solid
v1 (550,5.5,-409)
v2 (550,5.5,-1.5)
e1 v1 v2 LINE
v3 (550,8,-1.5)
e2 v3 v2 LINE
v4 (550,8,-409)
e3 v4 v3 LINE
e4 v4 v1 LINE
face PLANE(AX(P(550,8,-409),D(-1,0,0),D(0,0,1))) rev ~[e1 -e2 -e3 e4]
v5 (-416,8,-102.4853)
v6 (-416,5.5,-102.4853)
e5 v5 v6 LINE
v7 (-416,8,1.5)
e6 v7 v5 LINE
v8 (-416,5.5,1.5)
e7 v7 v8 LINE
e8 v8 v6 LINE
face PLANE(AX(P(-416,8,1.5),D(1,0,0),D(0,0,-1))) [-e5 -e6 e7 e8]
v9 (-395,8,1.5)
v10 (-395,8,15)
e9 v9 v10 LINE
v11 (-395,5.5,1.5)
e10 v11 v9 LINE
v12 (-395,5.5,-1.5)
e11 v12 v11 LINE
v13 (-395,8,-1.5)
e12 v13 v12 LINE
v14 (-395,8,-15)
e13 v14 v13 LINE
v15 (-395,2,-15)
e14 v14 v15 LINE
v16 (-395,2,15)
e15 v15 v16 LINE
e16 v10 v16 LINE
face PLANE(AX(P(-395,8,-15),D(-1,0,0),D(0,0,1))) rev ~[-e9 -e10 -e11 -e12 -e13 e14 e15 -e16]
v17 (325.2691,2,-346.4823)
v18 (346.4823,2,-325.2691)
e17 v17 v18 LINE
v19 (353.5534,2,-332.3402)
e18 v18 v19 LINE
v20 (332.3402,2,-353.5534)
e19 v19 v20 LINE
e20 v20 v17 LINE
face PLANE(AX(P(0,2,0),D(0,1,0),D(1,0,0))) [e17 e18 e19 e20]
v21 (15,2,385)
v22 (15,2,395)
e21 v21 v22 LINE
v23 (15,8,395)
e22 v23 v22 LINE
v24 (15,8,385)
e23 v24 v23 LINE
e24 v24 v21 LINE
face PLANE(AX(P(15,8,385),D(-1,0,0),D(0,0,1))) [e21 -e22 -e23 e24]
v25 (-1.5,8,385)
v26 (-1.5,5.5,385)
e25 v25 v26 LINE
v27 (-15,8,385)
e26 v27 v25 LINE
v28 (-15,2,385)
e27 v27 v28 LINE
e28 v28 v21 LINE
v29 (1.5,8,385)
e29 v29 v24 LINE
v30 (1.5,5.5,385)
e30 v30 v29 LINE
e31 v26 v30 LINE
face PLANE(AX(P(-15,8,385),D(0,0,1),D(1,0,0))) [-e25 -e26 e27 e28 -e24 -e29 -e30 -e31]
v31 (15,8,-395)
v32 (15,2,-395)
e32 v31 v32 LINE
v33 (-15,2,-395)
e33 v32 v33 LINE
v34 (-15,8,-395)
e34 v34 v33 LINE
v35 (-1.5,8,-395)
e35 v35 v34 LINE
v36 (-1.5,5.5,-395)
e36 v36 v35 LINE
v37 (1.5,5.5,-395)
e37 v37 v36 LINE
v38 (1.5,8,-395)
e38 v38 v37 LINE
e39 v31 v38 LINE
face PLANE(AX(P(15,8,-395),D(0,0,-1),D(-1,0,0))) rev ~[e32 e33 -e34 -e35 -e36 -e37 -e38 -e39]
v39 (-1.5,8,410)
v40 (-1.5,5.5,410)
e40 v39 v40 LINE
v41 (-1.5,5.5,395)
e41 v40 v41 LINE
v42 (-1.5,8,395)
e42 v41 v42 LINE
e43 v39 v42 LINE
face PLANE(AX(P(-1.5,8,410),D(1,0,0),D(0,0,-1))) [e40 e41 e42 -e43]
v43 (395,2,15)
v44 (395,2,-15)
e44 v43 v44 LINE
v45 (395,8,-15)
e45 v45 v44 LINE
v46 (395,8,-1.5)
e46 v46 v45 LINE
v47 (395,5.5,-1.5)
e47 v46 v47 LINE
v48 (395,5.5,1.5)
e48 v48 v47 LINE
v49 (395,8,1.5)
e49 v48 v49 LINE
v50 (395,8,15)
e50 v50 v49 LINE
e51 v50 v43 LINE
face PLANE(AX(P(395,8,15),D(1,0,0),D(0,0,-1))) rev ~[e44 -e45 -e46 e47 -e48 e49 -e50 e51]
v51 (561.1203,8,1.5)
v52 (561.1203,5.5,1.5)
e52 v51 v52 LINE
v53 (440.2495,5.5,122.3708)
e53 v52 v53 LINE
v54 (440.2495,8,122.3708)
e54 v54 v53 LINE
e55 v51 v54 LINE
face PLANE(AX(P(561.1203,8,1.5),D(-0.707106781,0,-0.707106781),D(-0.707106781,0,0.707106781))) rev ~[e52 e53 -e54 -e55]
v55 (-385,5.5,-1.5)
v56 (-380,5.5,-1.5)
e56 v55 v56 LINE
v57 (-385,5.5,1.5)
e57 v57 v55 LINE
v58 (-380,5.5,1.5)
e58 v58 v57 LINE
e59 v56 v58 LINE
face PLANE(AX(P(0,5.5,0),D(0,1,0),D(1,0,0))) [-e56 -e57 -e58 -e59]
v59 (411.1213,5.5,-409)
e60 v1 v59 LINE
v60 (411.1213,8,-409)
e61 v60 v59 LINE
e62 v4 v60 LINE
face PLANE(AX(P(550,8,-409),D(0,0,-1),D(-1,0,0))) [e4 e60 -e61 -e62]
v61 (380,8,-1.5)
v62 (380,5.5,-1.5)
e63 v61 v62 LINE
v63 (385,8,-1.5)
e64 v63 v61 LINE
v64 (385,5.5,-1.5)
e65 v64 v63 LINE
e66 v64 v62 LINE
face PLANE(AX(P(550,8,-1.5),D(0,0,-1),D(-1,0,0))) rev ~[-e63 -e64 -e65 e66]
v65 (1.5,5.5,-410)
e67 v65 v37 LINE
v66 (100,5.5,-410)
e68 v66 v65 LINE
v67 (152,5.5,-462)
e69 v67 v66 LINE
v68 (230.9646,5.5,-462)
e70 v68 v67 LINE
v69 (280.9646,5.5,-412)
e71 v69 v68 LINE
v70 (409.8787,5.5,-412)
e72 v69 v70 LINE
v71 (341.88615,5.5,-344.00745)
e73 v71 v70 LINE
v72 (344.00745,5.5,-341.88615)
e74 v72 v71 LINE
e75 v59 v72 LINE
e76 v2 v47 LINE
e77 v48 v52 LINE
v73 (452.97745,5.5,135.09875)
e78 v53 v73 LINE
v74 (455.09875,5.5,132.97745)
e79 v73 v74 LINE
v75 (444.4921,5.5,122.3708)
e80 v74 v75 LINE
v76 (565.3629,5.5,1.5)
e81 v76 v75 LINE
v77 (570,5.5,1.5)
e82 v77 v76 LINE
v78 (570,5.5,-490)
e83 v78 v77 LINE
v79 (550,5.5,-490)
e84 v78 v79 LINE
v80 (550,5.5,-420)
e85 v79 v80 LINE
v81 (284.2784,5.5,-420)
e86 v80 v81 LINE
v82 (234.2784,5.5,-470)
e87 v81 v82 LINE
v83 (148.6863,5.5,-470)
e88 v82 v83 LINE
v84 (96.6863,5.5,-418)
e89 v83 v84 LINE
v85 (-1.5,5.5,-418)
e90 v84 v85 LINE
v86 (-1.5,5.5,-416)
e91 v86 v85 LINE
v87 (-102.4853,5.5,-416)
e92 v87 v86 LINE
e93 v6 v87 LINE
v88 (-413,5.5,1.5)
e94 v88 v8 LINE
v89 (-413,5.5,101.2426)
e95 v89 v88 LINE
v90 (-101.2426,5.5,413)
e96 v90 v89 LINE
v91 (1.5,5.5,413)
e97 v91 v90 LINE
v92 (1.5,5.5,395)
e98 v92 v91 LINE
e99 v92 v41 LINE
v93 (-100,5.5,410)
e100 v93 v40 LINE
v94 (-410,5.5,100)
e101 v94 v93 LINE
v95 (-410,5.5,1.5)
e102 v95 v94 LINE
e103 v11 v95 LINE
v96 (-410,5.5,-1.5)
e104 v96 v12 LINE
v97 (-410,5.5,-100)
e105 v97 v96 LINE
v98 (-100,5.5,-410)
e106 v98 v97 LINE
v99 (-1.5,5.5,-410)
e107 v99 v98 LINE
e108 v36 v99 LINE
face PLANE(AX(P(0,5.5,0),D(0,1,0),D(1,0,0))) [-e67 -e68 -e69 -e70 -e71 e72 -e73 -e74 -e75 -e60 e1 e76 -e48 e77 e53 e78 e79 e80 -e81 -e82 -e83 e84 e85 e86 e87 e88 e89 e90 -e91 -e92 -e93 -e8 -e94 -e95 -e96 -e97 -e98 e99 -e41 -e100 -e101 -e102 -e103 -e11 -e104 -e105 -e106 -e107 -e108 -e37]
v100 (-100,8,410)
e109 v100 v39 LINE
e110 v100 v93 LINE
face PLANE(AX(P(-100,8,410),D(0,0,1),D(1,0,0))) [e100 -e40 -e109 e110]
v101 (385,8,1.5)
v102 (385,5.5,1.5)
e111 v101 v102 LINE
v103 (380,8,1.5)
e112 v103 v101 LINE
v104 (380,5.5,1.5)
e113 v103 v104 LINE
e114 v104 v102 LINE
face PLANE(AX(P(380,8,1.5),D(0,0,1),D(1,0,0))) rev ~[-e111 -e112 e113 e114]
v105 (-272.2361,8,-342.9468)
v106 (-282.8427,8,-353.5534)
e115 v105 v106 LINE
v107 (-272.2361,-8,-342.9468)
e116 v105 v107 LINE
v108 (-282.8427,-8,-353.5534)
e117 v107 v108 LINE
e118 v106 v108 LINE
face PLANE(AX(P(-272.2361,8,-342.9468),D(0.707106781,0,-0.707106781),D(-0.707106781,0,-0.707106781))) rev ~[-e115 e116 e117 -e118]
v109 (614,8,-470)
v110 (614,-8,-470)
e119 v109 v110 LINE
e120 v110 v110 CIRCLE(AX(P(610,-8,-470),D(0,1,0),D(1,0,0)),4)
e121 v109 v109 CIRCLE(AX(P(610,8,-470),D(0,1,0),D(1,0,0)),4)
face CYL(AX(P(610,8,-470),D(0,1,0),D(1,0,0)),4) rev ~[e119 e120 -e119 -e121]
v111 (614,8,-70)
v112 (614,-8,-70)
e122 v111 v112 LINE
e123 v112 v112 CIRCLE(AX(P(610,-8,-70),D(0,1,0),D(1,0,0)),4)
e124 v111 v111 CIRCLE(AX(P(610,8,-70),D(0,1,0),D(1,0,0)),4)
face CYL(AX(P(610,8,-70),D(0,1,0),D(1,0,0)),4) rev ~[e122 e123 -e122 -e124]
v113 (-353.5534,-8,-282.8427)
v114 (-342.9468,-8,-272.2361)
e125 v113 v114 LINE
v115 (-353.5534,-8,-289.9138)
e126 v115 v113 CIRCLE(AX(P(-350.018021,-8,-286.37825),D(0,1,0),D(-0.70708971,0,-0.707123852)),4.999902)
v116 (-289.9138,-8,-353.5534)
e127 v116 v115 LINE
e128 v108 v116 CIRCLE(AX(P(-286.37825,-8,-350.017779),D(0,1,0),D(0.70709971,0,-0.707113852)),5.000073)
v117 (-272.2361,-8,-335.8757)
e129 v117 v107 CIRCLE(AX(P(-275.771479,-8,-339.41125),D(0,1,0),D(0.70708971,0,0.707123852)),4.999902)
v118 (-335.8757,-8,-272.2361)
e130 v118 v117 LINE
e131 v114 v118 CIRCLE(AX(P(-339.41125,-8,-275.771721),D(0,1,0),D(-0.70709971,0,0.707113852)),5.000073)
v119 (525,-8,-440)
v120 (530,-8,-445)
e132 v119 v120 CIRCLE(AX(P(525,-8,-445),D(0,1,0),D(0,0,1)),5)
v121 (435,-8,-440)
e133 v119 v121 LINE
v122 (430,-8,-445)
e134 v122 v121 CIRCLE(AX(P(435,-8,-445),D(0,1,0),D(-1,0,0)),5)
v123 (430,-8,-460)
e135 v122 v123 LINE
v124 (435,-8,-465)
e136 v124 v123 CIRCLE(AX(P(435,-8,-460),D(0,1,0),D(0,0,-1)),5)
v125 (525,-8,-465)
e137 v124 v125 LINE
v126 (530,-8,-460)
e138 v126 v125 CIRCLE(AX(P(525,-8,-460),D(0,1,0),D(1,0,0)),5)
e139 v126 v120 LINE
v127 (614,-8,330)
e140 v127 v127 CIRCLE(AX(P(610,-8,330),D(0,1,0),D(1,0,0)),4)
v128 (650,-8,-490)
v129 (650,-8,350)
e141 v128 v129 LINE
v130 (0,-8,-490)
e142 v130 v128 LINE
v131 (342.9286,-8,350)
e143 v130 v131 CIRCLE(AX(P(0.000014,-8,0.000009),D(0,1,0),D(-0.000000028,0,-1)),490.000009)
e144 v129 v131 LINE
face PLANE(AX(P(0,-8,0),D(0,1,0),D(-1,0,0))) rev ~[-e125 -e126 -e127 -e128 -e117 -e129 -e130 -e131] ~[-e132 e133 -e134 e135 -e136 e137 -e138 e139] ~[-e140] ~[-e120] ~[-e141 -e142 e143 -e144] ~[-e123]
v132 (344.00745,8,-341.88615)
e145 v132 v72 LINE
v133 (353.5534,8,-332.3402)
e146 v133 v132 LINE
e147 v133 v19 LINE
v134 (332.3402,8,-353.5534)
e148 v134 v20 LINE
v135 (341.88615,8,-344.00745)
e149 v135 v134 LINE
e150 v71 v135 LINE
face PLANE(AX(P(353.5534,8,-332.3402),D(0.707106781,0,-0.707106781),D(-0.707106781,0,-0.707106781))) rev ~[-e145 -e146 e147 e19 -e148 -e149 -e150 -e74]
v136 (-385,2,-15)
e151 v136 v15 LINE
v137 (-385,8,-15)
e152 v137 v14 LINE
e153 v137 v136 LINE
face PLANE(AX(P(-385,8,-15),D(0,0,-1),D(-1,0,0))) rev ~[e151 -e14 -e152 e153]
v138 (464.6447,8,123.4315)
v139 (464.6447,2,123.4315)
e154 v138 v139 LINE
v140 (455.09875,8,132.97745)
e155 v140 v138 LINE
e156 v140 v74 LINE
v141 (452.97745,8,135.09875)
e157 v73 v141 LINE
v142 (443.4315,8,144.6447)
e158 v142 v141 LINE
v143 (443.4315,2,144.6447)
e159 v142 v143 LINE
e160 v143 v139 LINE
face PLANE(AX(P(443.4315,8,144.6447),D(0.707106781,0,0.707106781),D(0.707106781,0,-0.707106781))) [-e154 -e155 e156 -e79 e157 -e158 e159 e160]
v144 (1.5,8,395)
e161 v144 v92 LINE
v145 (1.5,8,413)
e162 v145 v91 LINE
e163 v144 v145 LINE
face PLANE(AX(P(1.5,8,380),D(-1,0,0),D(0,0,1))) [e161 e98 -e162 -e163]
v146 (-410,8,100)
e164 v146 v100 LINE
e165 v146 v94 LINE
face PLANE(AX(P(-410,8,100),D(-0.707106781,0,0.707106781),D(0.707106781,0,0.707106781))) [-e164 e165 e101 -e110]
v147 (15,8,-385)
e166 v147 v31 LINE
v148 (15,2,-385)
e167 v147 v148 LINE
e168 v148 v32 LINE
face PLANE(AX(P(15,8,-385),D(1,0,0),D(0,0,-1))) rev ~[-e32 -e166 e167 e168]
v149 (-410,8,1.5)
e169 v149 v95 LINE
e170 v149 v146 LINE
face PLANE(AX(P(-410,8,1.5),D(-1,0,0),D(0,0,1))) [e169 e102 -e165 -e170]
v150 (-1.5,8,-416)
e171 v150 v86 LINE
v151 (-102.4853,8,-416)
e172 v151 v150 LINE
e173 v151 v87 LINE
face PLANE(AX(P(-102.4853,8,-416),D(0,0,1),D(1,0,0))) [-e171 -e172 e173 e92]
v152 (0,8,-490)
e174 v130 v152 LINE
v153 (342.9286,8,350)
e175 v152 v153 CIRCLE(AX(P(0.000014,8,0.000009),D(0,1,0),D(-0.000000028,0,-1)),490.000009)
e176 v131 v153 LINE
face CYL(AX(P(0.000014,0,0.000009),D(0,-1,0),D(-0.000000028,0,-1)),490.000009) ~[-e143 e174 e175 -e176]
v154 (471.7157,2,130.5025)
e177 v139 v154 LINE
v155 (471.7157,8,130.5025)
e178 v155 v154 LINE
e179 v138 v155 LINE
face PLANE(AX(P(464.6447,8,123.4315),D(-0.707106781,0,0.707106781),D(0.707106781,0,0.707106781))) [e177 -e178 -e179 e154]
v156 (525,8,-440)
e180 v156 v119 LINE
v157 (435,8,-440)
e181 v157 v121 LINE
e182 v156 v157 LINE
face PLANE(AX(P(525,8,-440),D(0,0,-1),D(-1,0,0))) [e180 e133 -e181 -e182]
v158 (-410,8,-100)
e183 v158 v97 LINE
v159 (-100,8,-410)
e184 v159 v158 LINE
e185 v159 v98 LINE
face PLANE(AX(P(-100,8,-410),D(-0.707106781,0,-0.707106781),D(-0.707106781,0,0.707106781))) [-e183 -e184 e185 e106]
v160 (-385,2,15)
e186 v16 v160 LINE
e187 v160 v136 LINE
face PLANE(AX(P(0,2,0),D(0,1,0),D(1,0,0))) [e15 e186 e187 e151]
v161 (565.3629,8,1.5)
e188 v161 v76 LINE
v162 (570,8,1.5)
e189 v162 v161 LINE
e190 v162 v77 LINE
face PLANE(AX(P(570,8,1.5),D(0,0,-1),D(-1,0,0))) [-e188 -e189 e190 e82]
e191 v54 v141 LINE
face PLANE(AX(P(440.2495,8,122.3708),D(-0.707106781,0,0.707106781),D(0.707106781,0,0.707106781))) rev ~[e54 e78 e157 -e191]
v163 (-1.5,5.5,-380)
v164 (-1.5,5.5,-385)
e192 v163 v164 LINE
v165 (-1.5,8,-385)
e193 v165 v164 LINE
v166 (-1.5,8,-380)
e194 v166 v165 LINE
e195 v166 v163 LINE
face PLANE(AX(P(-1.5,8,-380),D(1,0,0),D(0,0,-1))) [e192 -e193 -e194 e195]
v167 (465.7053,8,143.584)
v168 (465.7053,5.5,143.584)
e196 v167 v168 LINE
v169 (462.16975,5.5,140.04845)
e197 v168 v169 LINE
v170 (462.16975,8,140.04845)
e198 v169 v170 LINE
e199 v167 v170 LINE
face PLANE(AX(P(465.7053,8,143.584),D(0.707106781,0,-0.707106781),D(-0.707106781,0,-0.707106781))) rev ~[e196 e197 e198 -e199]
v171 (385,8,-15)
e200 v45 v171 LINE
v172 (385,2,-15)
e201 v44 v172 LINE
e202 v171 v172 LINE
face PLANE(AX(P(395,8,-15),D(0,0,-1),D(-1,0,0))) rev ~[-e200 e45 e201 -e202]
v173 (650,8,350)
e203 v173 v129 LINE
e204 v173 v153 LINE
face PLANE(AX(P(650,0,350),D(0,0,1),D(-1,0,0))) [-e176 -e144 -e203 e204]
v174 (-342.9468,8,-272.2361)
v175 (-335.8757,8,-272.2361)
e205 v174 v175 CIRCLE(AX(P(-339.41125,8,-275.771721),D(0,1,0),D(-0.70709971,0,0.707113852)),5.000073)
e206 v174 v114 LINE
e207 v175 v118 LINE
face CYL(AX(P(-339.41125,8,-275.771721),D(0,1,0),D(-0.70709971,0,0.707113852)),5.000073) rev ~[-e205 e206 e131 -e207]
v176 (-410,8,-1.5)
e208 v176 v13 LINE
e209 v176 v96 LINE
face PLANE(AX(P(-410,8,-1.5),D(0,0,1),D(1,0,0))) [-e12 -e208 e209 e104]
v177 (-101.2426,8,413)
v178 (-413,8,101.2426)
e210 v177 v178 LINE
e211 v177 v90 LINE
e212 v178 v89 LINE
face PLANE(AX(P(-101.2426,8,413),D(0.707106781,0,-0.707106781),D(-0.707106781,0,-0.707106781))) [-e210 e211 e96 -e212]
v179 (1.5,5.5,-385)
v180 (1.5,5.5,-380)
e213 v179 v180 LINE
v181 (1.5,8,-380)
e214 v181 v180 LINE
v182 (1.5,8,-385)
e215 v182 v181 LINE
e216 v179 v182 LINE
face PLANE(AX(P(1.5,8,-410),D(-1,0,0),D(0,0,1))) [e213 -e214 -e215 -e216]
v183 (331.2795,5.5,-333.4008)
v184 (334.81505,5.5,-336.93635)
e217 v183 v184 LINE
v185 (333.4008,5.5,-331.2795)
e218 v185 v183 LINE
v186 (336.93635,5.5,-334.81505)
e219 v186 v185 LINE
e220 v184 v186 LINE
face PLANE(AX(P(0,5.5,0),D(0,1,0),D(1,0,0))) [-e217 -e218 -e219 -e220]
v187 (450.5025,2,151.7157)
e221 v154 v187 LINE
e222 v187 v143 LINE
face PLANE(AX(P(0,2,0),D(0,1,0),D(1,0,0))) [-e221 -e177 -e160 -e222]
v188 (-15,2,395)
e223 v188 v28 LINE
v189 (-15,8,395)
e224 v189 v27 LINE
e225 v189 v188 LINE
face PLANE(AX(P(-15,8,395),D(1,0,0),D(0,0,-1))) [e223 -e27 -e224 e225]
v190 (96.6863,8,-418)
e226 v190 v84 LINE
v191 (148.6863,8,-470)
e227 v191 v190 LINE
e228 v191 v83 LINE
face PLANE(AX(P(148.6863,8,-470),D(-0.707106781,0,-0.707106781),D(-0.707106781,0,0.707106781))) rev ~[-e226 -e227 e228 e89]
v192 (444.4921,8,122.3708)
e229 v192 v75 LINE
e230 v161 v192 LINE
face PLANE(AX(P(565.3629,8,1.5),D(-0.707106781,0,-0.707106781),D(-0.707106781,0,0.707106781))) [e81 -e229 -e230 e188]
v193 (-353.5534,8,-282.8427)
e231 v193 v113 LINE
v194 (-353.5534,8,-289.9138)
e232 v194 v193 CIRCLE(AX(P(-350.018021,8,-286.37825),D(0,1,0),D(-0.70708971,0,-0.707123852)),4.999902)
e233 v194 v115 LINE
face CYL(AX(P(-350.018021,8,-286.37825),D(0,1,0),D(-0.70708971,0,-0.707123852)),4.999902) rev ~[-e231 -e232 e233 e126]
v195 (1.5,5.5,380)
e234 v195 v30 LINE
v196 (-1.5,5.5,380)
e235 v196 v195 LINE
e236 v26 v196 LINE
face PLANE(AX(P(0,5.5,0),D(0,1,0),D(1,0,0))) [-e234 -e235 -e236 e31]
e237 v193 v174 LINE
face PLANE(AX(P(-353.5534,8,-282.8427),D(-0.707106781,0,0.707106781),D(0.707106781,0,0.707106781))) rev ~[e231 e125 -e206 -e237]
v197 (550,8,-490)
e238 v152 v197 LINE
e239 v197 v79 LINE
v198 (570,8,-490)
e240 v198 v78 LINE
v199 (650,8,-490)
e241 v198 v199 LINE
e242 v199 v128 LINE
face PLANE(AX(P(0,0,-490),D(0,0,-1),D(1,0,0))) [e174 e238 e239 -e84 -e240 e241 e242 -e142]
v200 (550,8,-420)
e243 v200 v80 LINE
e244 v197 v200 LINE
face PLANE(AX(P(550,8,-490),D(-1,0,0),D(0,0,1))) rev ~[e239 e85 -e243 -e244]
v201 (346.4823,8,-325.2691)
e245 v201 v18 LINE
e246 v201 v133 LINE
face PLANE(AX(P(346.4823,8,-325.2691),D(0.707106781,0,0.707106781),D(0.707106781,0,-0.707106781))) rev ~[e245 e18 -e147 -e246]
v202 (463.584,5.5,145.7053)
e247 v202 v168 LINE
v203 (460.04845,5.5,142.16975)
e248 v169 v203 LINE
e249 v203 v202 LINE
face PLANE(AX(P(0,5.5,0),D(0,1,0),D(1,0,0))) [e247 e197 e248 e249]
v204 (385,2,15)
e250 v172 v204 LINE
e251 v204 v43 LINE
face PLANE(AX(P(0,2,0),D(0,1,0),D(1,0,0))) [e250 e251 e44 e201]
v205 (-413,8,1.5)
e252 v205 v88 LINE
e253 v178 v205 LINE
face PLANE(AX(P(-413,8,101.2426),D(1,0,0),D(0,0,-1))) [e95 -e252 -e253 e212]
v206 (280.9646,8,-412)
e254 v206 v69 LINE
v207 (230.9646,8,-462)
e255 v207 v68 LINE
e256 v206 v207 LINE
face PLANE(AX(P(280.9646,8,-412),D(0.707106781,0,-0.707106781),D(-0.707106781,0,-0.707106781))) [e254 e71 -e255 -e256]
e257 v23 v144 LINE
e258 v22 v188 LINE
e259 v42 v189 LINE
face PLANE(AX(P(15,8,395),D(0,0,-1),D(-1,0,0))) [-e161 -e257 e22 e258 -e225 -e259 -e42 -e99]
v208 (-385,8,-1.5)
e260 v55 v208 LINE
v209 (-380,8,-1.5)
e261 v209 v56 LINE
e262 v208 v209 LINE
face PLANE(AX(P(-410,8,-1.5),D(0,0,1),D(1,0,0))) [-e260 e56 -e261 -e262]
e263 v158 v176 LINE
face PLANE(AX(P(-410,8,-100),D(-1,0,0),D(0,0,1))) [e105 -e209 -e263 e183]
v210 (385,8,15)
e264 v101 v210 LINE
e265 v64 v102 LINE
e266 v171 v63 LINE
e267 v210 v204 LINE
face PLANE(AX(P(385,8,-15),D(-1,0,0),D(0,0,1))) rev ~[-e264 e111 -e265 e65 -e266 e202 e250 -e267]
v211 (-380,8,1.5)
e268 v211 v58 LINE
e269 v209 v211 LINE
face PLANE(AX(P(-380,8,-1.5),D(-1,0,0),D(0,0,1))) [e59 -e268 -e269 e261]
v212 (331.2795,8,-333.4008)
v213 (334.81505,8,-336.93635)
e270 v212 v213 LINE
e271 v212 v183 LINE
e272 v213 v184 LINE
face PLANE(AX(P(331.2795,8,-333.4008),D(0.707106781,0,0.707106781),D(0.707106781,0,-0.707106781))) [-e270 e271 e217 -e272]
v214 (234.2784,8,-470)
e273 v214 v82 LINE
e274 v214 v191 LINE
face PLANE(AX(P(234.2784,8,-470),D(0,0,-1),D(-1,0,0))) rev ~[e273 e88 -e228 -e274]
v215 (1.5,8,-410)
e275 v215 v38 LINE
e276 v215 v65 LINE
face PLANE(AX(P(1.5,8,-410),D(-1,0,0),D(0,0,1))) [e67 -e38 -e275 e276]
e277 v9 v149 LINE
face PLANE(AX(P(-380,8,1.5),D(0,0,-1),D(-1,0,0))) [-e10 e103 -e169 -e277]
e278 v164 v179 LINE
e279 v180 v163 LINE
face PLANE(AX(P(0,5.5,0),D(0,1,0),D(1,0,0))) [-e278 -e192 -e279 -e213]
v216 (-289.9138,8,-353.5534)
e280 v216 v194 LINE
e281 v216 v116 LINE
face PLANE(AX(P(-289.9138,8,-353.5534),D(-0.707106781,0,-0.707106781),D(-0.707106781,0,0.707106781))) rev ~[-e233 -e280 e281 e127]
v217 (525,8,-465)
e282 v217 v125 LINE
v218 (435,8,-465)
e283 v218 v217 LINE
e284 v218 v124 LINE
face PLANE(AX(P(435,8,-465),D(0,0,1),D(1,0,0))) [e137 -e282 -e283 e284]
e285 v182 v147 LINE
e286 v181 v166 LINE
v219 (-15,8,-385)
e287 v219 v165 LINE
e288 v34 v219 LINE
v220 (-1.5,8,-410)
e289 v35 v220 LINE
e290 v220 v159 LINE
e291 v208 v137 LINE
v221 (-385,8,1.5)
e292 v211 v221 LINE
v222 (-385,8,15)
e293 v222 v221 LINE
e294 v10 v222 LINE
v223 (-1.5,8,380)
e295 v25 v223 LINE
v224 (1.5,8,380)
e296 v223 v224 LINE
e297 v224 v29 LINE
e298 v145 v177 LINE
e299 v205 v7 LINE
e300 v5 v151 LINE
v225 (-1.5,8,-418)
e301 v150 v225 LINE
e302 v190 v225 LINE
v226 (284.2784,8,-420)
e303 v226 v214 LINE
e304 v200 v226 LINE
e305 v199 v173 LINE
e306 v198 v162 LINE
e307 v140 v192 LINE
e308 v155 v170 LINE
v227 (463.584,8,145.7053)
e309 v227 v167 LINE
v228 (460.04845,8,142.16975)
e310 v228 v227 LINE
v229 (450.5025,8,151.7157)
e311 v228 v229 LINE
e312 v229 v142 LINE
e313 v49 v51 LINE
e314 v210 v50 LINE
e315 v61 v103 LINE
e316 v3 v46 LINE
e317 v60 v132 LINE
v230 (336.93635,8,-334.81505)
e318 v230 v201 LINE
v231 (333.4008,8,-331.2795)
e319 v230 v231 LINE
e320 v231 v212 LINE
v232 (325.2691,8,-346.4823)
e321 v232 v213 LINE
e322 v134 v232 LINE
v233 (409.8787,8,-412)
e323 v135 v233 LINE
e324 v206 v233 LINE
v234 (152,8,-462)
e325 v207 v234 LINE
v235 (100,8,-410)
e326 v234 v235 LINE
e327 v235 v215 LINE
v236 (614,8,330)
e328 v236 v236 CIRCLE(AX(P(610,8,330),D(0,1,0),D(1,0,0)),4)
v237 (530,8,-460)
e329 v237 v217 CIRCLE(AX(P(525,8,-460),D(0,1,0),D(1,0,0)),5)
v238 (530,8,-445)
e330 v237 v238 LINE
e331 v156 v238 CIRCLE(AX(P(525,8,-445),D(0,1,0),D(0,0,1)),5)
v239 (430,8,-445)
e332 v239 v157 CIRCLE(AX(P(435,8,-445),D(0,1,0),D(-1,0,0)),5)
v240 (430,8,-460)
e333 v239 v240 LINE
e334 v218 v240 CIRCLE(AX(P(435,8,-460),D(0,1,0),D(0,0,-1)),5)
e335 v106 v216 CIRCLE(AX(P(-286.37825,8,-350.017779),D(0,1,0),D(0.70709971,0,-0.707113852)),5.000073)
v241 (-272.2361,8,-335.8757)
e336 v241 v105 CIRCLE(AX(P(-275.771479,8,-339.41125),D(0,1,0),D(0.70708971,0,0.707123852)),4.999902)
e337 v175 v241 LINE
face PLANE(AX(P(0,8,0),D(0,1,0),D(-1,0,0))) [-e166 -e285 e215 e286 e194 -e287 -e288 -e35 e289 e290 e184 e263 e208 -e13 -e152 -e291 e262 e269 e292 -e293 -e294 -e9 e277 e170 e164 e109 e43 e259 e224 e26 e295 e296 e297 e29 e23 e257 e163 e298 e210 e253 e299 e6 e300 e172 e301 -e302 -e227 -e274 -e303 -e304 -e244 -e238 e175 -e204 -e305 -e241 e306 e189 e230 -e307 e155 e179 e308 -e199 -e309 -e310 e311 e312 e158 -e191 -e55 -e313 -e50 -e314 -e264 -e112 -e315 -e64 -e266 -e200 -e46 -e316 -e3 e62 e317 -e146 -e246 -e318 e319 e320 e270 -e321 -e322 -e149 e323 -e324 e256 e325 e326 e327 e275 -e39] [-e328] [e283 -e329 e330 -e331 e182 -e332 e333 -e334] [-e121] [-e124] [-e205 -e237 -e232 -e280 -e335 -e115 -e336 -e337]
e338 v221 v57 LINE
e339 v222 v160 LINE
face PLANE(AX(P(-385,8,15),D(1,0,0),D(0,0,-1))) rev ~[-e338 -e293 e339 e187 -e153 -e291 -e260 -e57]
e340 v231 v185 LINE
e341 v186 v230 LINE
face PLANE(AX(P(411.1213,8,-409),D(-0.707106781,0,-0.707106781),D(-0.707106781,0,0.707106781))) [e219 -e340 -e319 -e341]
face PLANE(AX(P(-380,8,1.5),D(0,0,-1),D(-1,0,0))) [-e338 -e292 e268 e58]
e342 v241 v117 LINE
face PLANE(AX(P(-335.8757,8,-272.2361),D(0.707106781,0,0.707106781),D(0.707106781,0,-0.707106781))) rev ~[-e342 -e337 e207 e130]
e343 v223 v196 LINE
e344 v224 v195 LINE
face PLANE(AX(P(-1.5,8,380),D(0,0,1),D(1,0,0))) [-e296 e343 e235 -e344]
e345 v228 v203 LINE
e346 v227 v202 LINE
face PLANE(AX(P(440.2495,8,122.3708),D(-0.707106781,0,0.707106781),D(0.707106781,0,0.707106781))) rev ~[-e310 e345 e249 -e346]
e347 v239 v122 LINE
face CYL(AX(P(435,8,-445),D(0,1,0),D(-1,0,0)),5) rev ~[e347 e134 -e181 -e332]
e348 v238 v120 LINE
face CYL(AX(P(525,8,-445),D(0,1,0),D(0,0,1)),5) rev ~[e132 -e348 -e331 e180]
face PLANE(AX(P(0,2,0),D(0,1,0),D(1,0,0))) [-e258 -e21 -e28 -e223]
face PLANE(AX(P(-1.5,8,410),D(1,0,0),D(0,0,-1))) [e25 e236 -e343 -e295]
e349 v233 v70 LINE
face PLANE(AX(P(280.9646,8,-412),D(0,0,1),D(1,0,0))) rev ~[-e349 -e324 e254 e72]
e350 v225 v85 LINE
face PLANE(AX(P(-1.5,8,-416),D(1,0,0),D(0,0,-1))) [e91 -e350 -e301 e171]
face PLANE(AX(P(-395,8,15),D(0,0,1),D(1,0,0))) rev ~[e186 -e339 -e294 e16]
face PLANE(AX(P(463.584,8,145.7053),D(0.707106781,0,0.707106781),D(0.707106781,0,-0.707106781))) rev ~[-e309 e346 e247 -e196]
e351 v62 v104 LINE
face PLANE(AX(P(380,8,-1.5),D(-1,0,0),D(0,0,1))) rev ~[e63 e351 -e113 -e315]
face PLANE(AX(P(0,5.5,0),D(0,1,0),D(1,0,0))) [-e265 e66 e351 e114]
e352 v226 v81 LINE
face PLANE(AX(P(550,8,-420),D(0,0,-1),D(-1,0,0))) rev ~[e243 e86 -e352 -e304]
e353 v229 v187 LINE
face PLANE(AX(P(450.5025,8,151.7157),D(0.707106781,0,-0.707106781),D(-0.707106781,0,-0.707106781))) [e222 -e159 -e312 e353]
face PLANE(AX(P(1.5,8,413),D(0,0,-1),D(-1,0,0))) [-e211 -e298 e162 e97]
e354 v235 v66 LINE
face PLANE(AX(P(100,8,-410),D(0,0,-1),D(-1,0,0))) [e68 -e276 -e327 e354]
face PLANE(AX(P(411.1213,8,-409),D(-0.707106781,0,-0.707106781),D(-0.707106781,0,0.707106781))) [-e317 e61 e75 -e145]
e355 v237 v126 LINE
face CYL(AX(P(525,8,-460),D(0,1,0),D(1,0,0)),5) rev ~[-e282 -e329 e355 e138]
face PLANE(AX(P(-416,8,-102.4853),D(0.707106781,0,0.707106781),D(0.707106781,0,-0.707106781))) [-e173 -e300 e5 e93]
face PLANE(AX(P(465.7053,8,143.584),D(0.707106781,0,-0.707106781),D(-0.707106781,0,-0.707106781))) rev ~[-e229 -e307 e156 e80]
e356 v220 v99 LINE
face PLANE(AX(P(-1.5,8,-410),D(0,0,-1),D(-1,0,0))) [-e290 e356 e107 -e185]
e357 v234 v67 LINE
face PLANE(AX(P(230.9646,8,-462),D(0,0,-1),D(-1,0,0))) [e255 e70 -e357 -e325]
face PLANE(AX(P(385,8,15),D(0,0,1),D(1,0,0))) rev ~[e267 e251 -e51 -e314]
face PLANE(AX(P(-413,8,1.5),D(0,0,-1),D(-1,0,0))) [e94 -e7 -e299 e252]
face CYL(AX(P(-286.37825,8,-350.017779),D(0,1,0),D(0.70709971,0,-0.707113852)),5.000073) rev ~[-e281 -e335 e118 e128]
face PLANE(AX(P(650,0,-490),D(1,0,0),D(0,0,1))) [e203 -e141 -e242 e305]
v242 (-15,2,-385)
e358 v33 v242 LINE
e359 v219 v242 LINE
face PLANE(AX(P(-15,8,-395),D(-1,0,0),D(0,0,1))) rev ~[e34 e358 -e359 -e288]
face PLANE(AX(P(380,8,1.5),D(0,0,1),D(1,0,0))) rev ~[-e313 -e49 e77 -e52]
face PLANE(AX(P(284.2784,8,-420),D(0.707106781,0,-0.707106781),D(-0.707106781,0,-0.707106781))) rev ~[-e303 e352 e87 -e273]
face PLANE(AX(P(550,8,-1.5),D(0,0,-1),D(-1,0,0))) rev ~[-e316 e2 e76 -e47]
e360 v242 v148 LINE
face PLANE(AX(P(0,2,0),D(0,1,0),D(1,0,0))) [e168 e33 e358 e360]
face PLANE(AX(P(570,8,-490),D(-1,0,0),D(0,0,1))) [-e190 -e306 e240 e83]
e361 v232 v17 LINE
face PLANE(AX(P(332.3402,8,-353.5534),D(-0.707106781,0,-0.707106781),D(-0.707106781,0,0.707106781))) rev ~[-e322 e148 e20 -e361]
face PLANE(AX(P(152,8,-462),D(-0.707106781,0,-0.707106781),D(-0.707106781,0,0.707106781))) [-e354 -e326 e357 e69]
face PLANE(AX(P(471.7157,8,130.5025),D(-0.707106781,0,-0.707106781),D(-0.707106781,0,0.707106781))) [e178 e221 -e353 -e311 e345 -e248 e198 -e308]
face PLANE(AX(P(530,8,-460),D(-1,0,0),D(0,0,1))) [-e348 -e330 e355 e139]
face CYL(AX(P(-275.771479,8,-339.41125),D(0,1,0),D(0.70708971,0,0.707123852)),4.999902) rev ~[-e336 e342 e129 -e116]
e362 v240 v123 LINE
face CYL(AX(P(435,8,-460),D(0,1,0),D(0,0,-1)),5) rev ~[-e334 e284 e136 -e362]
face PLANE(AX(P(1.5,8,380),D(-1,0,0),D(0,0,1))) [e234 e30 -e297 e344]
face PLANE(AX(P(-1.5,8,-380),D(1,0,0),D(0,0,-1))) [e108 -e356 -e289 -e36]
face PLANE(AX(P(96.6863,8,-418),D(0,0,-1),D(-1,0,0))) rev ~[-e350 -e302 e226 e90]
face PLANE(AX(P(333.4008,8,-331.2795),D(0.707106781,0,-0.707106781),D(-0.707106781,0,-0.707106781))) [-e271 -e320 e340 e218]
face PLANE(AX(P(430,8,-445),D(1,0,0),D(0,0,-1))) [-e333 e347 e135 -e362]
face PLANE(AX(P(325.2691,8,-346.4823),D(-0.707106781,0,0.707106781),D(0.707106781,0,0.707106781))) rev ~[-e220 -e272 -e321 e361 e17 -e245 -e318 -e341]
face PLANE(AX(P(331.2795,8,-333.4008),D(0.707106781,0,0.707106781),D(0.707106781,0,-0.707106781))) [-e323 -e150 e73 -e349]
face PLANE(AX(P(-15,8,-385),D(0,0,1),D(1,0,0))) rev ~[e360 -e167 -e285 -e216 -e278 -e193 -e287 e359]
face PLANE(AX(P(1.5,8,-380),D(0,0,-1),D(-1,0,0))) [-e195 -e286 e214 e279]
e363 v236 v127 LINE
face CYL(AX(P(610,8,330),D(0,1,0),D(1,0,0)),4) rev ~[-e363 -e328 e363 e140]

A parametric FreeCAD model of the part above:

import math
import FreeCAD as App
import Part
import Sketcher

V = App.Vector
Q = App.Units.Quantity

doc = App.newDocument("Part")
body = doc.addObject("PartDesign::Body", "Body")

# Sketch on XZ plane
sketch1 = body.newObject("Sketcher::SketchObject", "Sketch")
sketch1.AttachmentSupport = (doc.getObject("XZ_Plane"), [""])
sketch1.MapMode = "FlatFace"
sketch1.addGeometry([
    Part.LineSegment(V(650, -490, 0), V(0, -490, 0)),
    Part.ArcOfCircle(Part.Circle(V(0, 0, 0), V(0, 0, 1), 490), math.radians(46), math.radians(270)),
    Part.LineSegment(V(343, 350, 0), V(650, 350, 0)),
    Part.LineSegment(V(650, 350, 0), V(650, -490, 0)),
], False)
sketch1.addConstraint([
    Sketcher.Constraint("Tangent", 0, 2, 1, 2),
    Sketcher.Constraint("Coincident", 1, 1, 2, 1),
    Sketcher.Constraint("Coincident", 2, 2, 3, 1),
    Sketcher.Constraint("Coincident", 3, 2, 0, 1),
    Sketcher.Constraint("Horizontal", 0),
    Sketcher.Constraint("Horizontal", 2),
    Sketcher.Constraint("Vertical", 3),
    Sketcher.Constraint("Coincident", 1, 3, -1, 1),
    Sketcher.Constraint("Radius", 1, Q("490 mm")),
    Sketcher.Constraint("DistanceX", 0, 2, 0, 1, Q("650 mm")),
    Sketcher.Constraint("DistanceY", -1, 1, 2, 2, Q("350 mm")),
])
pad1 = body.newObject("PartDesign::Pad", "Pad")
pad1.Profile = sketch1
pad1.Length = 16
pad1.Midplane = True

# Sketch on XZ plane
sketch2 = body.newObject("Sketcher::SketchObject", "Sketch001")
sketch2.AttachmentSupport = (doc.getObject("XZ_Plane"), [""])
sketch2.MapMode = "FlatFace"
sketch2.AttachmentOffset = App.Placement(V(0, 0, -8), App.Rotation())
sketch2.addGeometry([
    Part.LineSegment(V(525, -465, 0), V(435, -465, 0)),  # 0
    Part.ArcOfCircle(Part.Circle(V(435, -460, 0), V(0, 0, 1), 5), math.radians(180), math.radians(270)),  # 1
    Part.LineSegment(V(430, -460, 0), V(430, -445, 0)),  # 2
    Part.ArcOfCircle(Part.Circle(V(435, -445, 0), V(0, 0, 1), 5), math.radians(90), math.radians(180)),  # 3
    Part.LineSegment(V(435, -440, 0), V(525, -440, 0)),  # 4
    Part.ArcOfCircle(Part.Circle(V(525, -445, 0), V(0, 0, 1), 5), math.radians(0), math.radians(90)),  # 5
    Part.LineSegment(V(530, -445, 0), V(530, -460, 0)),  # 6
    Part.ArcOfCircle(Part.Circle(V(525, -460, 0), V(0, 0, 1), 5), math.radians(-90), math.radians(0)),  # 7
    Part.ArcOfCircle(Part.Circle(V(-286.4, -350, 0), V(0, 0, 1), 5), math.radians(-135), math.radians(-45)),  # 8
    Part.LineSegment(V(-289.9, -353.6, 0), V(-353.6, -289.9, 0)),  # 9
    Part.ArcOfCircle(Part.Circle(V(-350, -286.4, 0), V(0, 0, 1), 5), math.radians(135), math.radians(225)),  # 10
    Part.LineSegment(V(-353.6, -282.8, 0), V(-342.9, -272.2, 0)),  # 11
    Part.ArcOfCircle(Part.Circle(V(-339.4, -275.8, 0), V(0, 0, 1), 5), math.radians(45), math.radians(135)),  # 12
    Part.LineSegment(V(-335.9, -272.2, 0), V(-272.2, -335.9, 0)),  # 13
    Part.ArcOfCircle(Part.Circle(V(-275.8, -339.4, 0), V(0, 0, 1), 5), math.radians(-45), math.radians(45)),  # 14
    Part.LineSegment(V(-272.2, -342.9, 0), V(-282.8, -353.6, 0)),  # 15
], False)
sketch2.addConstraint([
    Sketcher.Constraint("Tangent", 0, 2, 1, 2),
    Sketcher.Constraint("Tangent", 1, 1, 2, 1),
    Sketcher.Constraint("Tangent", 2, 2, 3, 2),
    Sketcher.Constraint("Tangent", 3, 1, 4, 1),
    Sketcher.Constraint("Tangent", 4, 2, 5, 2),
    Sketcher.Constraint("Tangent", 5, 1, 6, 1),
    Sketcher.Constraint("Tangent", 6, 2, 7, 2),
    Sketcher.Constraint("Tangent", 7, 1, 0, 1),
    Sketcher.Constraint("Tangent", 8, 1, 9, 1),
    Sketcher.Constraint("Tangent", 9, 2, 10, 2),
    Sketcher.Constraint("Tangent", 10, 1, 11, 1),
    Sketcher.Constraint("Tangent", 11, 2, 12, 2),
    Sketcher.Constraint("Tangent", 12, 1, 13, 1),
    Sketcher.Constraint("Tangent", 13, 2, 14, 2),
    Sketcher.Constraint("Tangent", 14, 1, 15, 1),
    Sketcher.Constraint("Tangent", 15, 2, 8, 2),
    Sketcher.Constraint("Horizontal", 0),
    Sketcher.Constraint("Vertical", 2),
    Sketcher.Constraint("Horizontal", 4),
    Sketcher.Constraint("Vertical", 6),
    Sketcher.Constraint("Equal", 1, 3),
    Sketcher.Constraint("Equal", 3, 5),
    Sketcher.Constraint("Equal", 5, 7),
    Sketcher.Constraint("Equal", 7, 8),
    Sketcher.Constraint("Equal", 8, 10),
    Sketcher.Constraint("Equal", 10, 12),
    Sketcher.Constraint("Equal", 12, 14),
    Sketcher.Constraint("Perpendicular", 9, 11),
    Sketcher.Constraint("Perpendicular", 11, 13),
    Sketcher.Constraint("Perpendicular", 13, 15),
    Sketcher.Constraint("Horizontal", 11, 2, 12, 1),
    Sketcher.Constraint("Radius", 1, Q("5 mm")),
    Sketcher.Constraint("DistanceX", 0, 2, 0, 1, Q("90 mm")),
    Sketcher.Constraint("Distance", 9, Q("90 mm")),
    Sketcher.Constraint("DistanceX", -1, 1, 1, 1, Q("430 mm")),
    Sketcher.Constraint("DistanceY", 0, 2, 3, 1, Q("25 mm")),
    Sketcher.Constraint("Distance", 11, Q("15 mm")),
    Sketcher.Constraint("DistanceY", 1, 3, -1, 1, Q("460 mm")),
    Sketcher.Constraint("DistanceY", 8, 3, -1, 1, Q("350.018 mm")),
    Sketcher.Constraint("DistanceX", 10, 3, -1, 1, Q("350.018 mm")),
])
pocket1 = body.newObject("PartDesign::Pocket", "Pocket")
pocket1.Profile = sketch2
pocket1.Type = "ThroughAll"
pocket1.Reversed = True

# Sketch on XZ plane
sketch3 = body.newObject("Sketcher::SketchObject", "Sketch002")
sketch3.AttachmentSupport = (doc.getObject("XZ_Plane"), [""])
sketch3.MapMode = "FlatFace"
sketch3.AttachmentOffset = App.Placement(V(0, 0, -8), App.Rotation())
sketch3.addGeometry([
    Part.Circle(V(610, -470, 0), V(0, 0, 1), 4),
    Part.Circle(V(610, 330, 0), V(0, 0, 1), 4),
    Part.Circle(V(610, -70, 0), V(0, 0, 1), 4),
], False)
sketch3.addConstraint([
    Sketcher.Constraint("Equal", 0, 1),
    Sketcher.Constraint("Equal", 1, 2),
    Sketcher.Constraint("Vertical", 0, 3, 1, 3),
    Sketcher.Constraint("Vertical", 1, 3, 2, 3),
    Sketcher.Constraint("Diameter", 0, Q("8 mm")),
    Sketcher.Constraint("DistanceX", -1, 1, 0, 3, Q("610 mm")),
    Sketcher.Constraint("DistanceY", 0, 3, -1, 1, Q("470 mm")),
    Sketcher.Constraint("DistanceY", -1, 1, 1, 3, Q("330 mm")),
    Sketcher.Constraint("DistanceY", 2, 3, -1, 1, Q("70 mm")),
])
pocket2 = body.newObject("PartDesign::Pocket", "Pocket001")
pocket2.Profile = sketch3
pocket2.Type = "ThroughAll"
pocket2.Reversed = True

# Sketch on XZ plane
sketch4 = body.newObject("Sketcher::SketchObject", "Sketch003")
sketch4.AttachmentSupport = (doc.getObject("XZ_Plane"), [""])
sketch4.MapMode = "FlatFace"
sketch4.AttachmentOffset = App.Placement(V(0, 0, -8), App.Rotation())
sketch4.addGeometry([
    Part.LineSegment(V(570, 1.5, 0), V(570, -490, 0)),  # 0
    Part.LineSegment(V(570, -490, 0), V(550, -490, 0)),  # 1
    Part.LineSegment(V(550, -490, 0), V(550, -420, 0)),  # 2
    Part.LineSegment(V(550, -420, 0), V(284.3, -420, 0)),  # 3
    Part.LineSegment(V(284.3, -420, 0), V(234.3, -470, 0)),  # 4
    Part.LineSegment(V(234.3, -470, 0), V(148.7, -470, 0)),  # 5
    Part.LineSegment(V(148.7, -470, 0), V(96.7, -418, 0)),  # 6
    Part.LineSegment(V(96.7, -418, 0), V(-1.5, -418, 0)),  # 7
    Part.LineSegment(V(-1.5, -418, 0), V(-1.5, -416, 0)),  # 8
    Part.LineSegment(V(-1.5, -416, 0), V(-102.5, -416, 0)),  # 9
    Part.LineSegment(V(-102.5, -416, 0), V(-416, -102.5, 0)),  # 10
    Part.LineSegment(V(-416, -102.5, 0), V(-416, 1.5, 0)),  # 11
    Part.LineSegment(V(-416, 1.5, 0), V(-413, 1.5, 0)),  # 12
    Part.LineSegment(V(-413, 1.5, 0), V(-413, 101.2, 0)),  # 13
    Part.LineSegment(V(-413, 101.2, 0), V(-101.2, 413, 0)),  # 14
    Part.LineSegment(V(-101.2, 413, 0), V(1.5, 413, 0)),  # 15
    Part.LineSegment(V(1.5, 413, 0), V(1.5, 380, 0)),  # 16
    Part.LineSegment(V(1.5, 380, 0), V(-1.5, 380, 0)),  # 17
    Part.LineSegment(V(-1.5, 380, 0), V(-1.5, 410, 0)),  # 18
    Part.LineSegment(V(-1.5, 410, 0), V(-100, 410, 0)),  # 19
    Part.LineSegment(V(-100, 410, 0), V(-410, 100, 0)),  # 20
    Part.LineSegment(V(-410, 100, 0), V(-410, 1.5, 0)),  # 21
    Part.LineSegment(V(-410, 1.5, 0), V(-380, 1.5, 0)),  # 22
    Part.LineSegment(V(-380, 1.5, 0), V(-380, -1.5, 0)),  # 23
    Part.LineSegment(V(-380, -1.5, 0), V(-410, -1.5, 0)),  # 24
    Part.LineSegment(V(-410, -1.5, 0), V(-410, -100, 0)),  # 25
    Part.LineSegment(V(-410, -100, 0), V(-100, -410, 0)),  # 26
    Part.LineSegment(V(-100, -410, 0), V(-1.5, -410, 0)),  # 27
    Part.LineSegment(V(-1.5, -410, 0), V(-1.5, -380, 0)),  # 28
    Part.LineSegment(V(-1.5, -380, 0), V(1.5, -380, 0)),  # 29
    Part.LineSegment(V(1.5, -380, 0), V(1.5, -410, 0)),  # 30
    Part.LineSegment(V(1.5, -410, 0), V(100, -410, 0)),  # 31
    Part.LineSegment(V(100, -410, 0), V(152, -462, 0)),  # 32
    Part.LineSegment(V(152, -462, 0), V(231, -462, 0)),  # 33
    Part.LineSegment(V(231, -462, 0), V(281, -412, 0)),  # 34
    Part.LineSegment(V(281, -412, 0), V(409.9, -412, 0)),  # 35
    Part.LineSegment(V(409.9, -412, 0), V(331.3, -333.4, 0)),  # 36
    Part.LineSegment(V(331.3, -333.4, 0), V(333.4, -331.3, 0)),  # 37
    Part.LineSegment(V(333.4, -331.3, 0), V(411.1, -409, 0)),  # 38
    Part.LineSegment(V(411.1, -409, 0), V(550, -409, 0)),  # 39
    Part.LineSegment(V(550, -409, 0), V(550, -1.5, 0)),  # 40
    Part.LineSegment(V(550, -1.5, 0), V(380, -1.5, 0)),  # 41
    Part.LineSegment(V(380, -1.5, 0), V(380, 1.5, 0)),  # 42
    Part.LineSegment(V(380, 1.5, 0), V(561.1, 1.5, 0)),  # 43
    Part.LineSegment(V(561.1, 1.5, 0), V(440.2, 122.4, 0)),  # 44
    Part.LineSegment(V(440.2, 122.4, 0), V(463.6, 145.7, 0)),  # 45
    Part.LineSegment(V(463.6, 145.7, 0), V(465.7, 143.6, 0)),  # 46
    Part.LineSegment(V(465.7, 143.6, 0), V(444.5, 122.4, 0)),  # 47
    Part.LineSegment(V(444.5, 122.4, 0), V(565.4, 1.5, 0)),  # 48
    Part.LineSegment(V(565.4, 1.5, 0), V(570, 1.5, 0)),  # 49
], False)
sketch4.addConstraint([
    Sketcher.Constraint("Coincident", 0, 2, 1, 1),
    Sketcher.Constraint("Coincident", 1, 2, 2, 1),
    Sketcher.Constraint("Coincident", 2, 2, 3, 1),
    Sketcher.Constraint("Coincident", 3, 2, 4, 1),
    Sketcher.Constraint("Coincident", 4, 2, 5, 1),
    Sketcher.Constraint("Coincident", 5, 2, 6, 1),
    Sketcher.Constraint("Coincident", 6, 2, 7, 1),
    Sketcher.Constraint("Coincident", 7, 2, 8, 1),
    Sketcher.Constraint("Coincident", 8, 2, 9, 1),
    Sketcher.Constraint("Coincident", 9, 2, 10, 1),
    Sketcher.Constraint("Coincident", 10, 2, 11, 1),
    Sketcher.Constraint("Coincident", 11, 2, 12, 1),
    Sketcher.Constraint("Coincident", 12, 2, 13, 1),
    Sketcher.Constraint("Coincident", 13, 2, 14, 1),
    Sketcher.Constraint("Coincident", 14, 2, 15, 1),
    Sketcher.Constraint("Coincident", 15, 2, 16, 1),
    Sketcher.Constraint("Coincident", 16, 2, 17, 1),
    Sketcher.Constraint("Coincident", 17, 2, 18, 1),
    Sketcher.Constraint("Coincident", 18, 2, 19, 1),
    Sketcher.Constraint("Coincident", 19, 2, 20, 1),
    Sketcher.Constraint("Coincident", 20, 2, 21, 1),
    Sketcher.Constraint("Coincident", 21, 2, 22, 1),
    Sketcher.Constraint("Coincident", 22, 2, 23, 1),
    Sketcher.Constraint("Coincident", 23, 2, 24, 1),
    Sketcher.Constraint("Coincident", 24, 2, 25, 1),
    Sketcher.Constraint("Coincident", 25, 2, 26, 1),
    Sketcher.Constraint("Coincident", 26, 2, 27, 1),
    Sketcher.Constraint("Coincident", 27, 2, 28, 1),
    Sketcher.Constraint("Coincident", 28, 2, 29, 1),
    Sketcher.Constraint("Coincident", 29, 2, 30, 1),
    Sketcher.Constraint("Coincident", 30, 2, 31, 1),
    Sketcher.Constraint("Coincident", 31, 2, 32, 1),
    Sketcher.Constraint("Coincident", 32, 2, 33, 1),
    Sketcher.Constraint("Coincident", 33, 2, 34, 1),
    Sketcher.Constraint("Coincident", 34, 2, 35, 1),
    Sketcher.Constraint("Coincident", 35, 2, 36, 1),
    Sketcher.Constraint("Coincident", 36, 2, 37, 1),
    Sketcher.Constraint("Coincident", 37, 2, 38, 1),
    Sketcher.Constraint("Coincident", 38, 2, 39, 1),
    Sketcher.Constraint("Coincident", 39, 2, 40, 1),
    Sketcher.Constraint("Coincident", 40, 2, 41, 1),
    Sketcher.Constraint("Coincident", 41, 2, 42, 1),
    Sketcher.Constraint("Coincident", 42, 2, 43, 1),
    Sketcher.Constraint("Coincident", 43, 2, 44, 1),
    Sketcher.Constraint("Coincident", 44, 2, 45, 1),
    Sketcher.Constraint("Coincident", 45, 2, 46, 1),
    Sketcher.Constraint("Coincident", 46, 2, 47, 1),
    Sketcher.Constraint("Coincident", 47, 2, 48, 1),
    Sketcher.Constraint("Coincident", 48, 2, 49, 1),
    Sketcher.Constraint("Coincident", 49, 2, 0, 1),
    Sketcher.Constraint("Vertical", 0),
    Sketcher.Constraint("Horizontal", 1),
    Sketcher.Constraint("Vertical", 2),
    Sketcher.Constraint("Horizontal", 3),
    Sketcher.Constraint("Horizontal", 5),
    Sketcher.Constraint("Horizontal", 7),
    Sketcher.Constraint("Vertical", 8),
    Sketcher.Constraint("Horizontal", 9),
    Sketcher.Constraint("Vertical", 11),
    Sketcher.Constraint("Horizontal", 12),
    Sketcher.Constraint("Vertical", 13),
    Sketcher.Constraint("Horizontal", 15),
    Sketcher.Constraint("Vertical", 16),
    Sketcher.Constraint("Horizontal", 17),
    Sketcher.Constraint("Vertical", 18),
    Sketcher.Constraint("Horizontal", 19),
    Sketcher.Constraint("Vertical", 21),
    Sketcher.Constraint("Horizontal", 22),
    Sketcher.Constraint("Vertical", 23),
    Sketcher.Constraint("Horizontal", 24),
    Sketcher.Constraint("Vertical", 25),
    Sketcher.Constraint("Horizontal", 27),
    Sketcher.Constraint("Vertical", 28),
    Sketcher.Constraint("Horizontal", 29),
    Sketcher.Constraint("Vertical", 30),
    Sketcher.Constraint("Horizontal", 31),
    Sketcher.Constraint("Horizontal", 33),
    Sketcher.Constraint("Horizontal", 35),
    Sketcher.Constraint("Horizontal", 39),
    Sketcher.Constraint("Vertical", 40),
    Sketcher.Constraint("Horizontal", 41),
    Sketcher.Constraint("Vertical", 42),
    Sketcher.Constraint("Horizontal", 43),
    Sketcher.Constraint("Horizontal", 49),
    Sketcher.Constraint("Symmetric", 16, 2, 28, 2, -1, 1),
    Sketcher.Constraint("Symmetric", 18, 2, 30, 2, -1, 1),
    Sketcher.Constraint("Symmetric", 22, 2, 41, 2, -1, 1),
    Sketcher.Constraint("Symmetric", 27, 2, 30, 2, -2),
    Sketcher.Constraint("Symmetric", 21, 2, 24, 2, -1),
    Sketcher.Constraint("Perpendicular", 4, 6),
    Sketcher.Constraint("Parallel", 6, 10),
    Sketcher.Constraint("Perpendicular", 10, 14),
    Sketcher.Constraint("Parallel", 14, 20),
    Sketcher.Constraint("Perpendicular", 20, 26),
    Sketcher.Constraint("Parallel", 26, 32),
    Sketcher.Constraint("Perpendicular", 32, 34),
    Sketcher.Constraint("Perpendicular", 34, 36),
    Sketcher.Constraint("Perpendicular", 36, 37),
    Sketcher.Constraint("Perpendicular", 37, 38),
    Sketcher.Constraint("Parallel", 38, 44),
    Sketcher.Constraint("Perpendicular", 44, 45),
    Sketcher.Constraint("Perpendicular", 45, 46),
    Sketcher.Constraint("Perpendicular", 46, 47),
    Sketcher.Constraint("Perpendicular", 47, 48),
    Sketcher.Constraint("Horizontal", 12, 2, 21, 2),
    Sketcher.Constraint("Horizontal", 22, 2, 42, 2),
    Sketcher.Constraint("Horizontal", 44, 2, 47, 2),
    Sketcher.Constraint("Horizontal", 43, 2, 48, 2),
    Sketcher.Constraint("Vertical", 8, 2, 17, 2),
    Sketcher.Constraint("Vertical", 19, 2, 26, 2),
    Sketcher.Constraint("Vertical", 2, 2, 39, 2),
    Sketcher.Constraint("Equal", 12, 17),
    Sketcher.Constraint("Equal", 27, 31),
    Sketcher.Constraint("Equal", 24, 18),
    Sketcher.Constraint("Equal", 31, 21),
    Sketcher.Constraint("Equal", 29, 23),
    Sketcher.Constraint("Equal", 21, 25),
    Sketcher.Constraint("Equal", 6, 32),
    Sketcher.Constraint("Equal", 4, 34),
    Sketcher.Constraint("Equal", 37, 46),
    Sketcher.Constraint("DistanceX", 1, 2, 1, 1, Q("20 mm")),
    Sketcher.Constraint("DistanceX", 12, 1, 12, 2, Q("3 mm")),
    Sketcher.Constraint("Distance", 37, Q("3 mm")),
    Sketcher.Constraint("DistanceY", 1, 2, 4, 2, Q("20 mm")),
    Sketcher.Constraint("DistanceY", 18, 2, 15, 2, Q("3 mm")),
    Sketcher.Constraint("DistanceX", 13, 2, 20, 2, Q("3 mm")),
    Sketcher.Constraint("DistanceY", 9, 2, 26, 2, Q("6 mm")),
    Sketcher.Constraint("DistanceY", 7, 2, 26, 2, Q("8 mm")),
    Sketcher.Constraint("DistanceY", 35, 2, 38, 2, Q("3 mm")),
    Sketcher.Constraint("DistanceX", 22, 1, 22, 2, Q("30 mm")),
    Sketcher.Constraint("DistanceX", 41, 2, 41, 1, Q("170 mm")),
    Sketcher.Constraint("DistanceY", 2, 1, 2, 2, Q("70 mm")),
    Sketcher.Constraint("Distance", 45, Q("33 mm")),
    Sketcher.Constraint("DistanceX", 19, 2, 19, 1, Q("98.5 mm")),
    Sketcher.Constraint("DistanceY", 0, 2, 0, 1, Q("491.5 mm")),
    Sketcher.Constraint("DistanceX", -1, 1, 0, 2, Q("570 mm")),
    Sketcher.Constraint("DistanceX", 5, 2, 5, 1, Q("85.592 mm")),
    Sketcher.Constraint("DistanceX", 35, 1, 35, 2, Q("128.914 mm")),
    Sketcher.Constraint("DistanceX", 49, 1, 49, 2, Q("4.637 mm")),
    Sketcher.Constraint("Distance", 36, Q("111.156 mm")),
    Sketcher.Constraint("DistanceX", 3, 2, 3, 1, Q("265.7216 mm")),
    Sketcher.Constraint("DistanceX", 9, 2, 9, 1, Q("100.9853 mm")),
    Sketcher.Constraint("DistanceX", 15, 1, 15, 2, Q("102.7426 mm")),
    Sketcher.Constraint("DistanceX", 33, 1, 33, 2, Q("78.9646 mm")),
    Sketcher.Constraint("DistanceX", -1, 1, 45, 2, Q("463.584 mm")),
])
pocket3 = body.newObject("PartDesign::Pocket", "Pocket002")
pocket3.Profile = sketch4
pocket3.Length = 2.5
pocket3.Reversed = True

# Sketch on XZ plane
sketch5 = body.newObject("Sketcher::SketchObject", "Sketch004")
sketch5.AttachmentSupport = (doc.getObject("XZ_Plane"), [""])
sketch5.MapMode = "FlatFace"
sketch5.AttachmentOffset = App.Placement(V(0, 0, -8), App.Rotation())
sketch5.addGeometry([
    Part.LineSegment(V(472, 131, 0), V(465, 123, 0)),  # 0
    Part.LineSegment(V(465, 123, 0), V(443, 145, 0)),  # 1
    Part.LineSegment(V(443, 145, 0), V(451, 152, 0)),  # 2
    Part.LineSegment(V(451, 152, 0), V(472, 131, 0)),  # 3
    Part.LineSegment(V(332, -354, 0), V(325, -346, 0)),  # 4
    Part.LineSegment(V(325, -346, 0), V(346, -325, 0)),  # 5
    Part.LineSegment(V(346, -325, 0), V(354, -332, 0)),  # 6
    Part.LineSegment(V(354, -332, 0), V(332, -354, 0)),  # 7
    Part.LineSegment(V(-15, -395, 0), V(-15, -385, 0)),  # 8
    Part.LineSegment(V(-15, -385, 0), V(15, -385, 0)),  # 9
    Part.LineSegment(V(15, -385, 0), V(15, -395, 0)),  # 10
    Part.LineSegment(V(15, -395, 0), V(-15, -395, 0)),  # 11
    Part.LineSegment(V(-385, -15, 0), V(-395, -15, 0)),  # 12
    Part.LineSegment(V(-395, -15, 0), V(-395, 15, 0)),  # 13
    Part.LineSegment(V(-395, 15, 0), V(-385, 15, 0)),  # 14
    Part.LineSegment(V(-385, 15, 0), V(-385, -15, 0)),  # 15
    Part.LineSegment(V(395, -15, 0), V(385, -15, 0)),  # 16
    Part.LineSegment(V(385, -15, 0), V(385, 15, 0)),  # 17
    Part.LineSegment(V(385, 15, 0), V(395, 15, 0)),  # 18
    Part.LineSegment(V(395, 15, 0), V(395, -15, 0)),  # 19
    Part.LineSegment(V(15, 385, 0), V(-15, 385, 0)),  # 20
    Part.LineSegment(V(-15, 385, 0), V(-15, 395, 0)),  # 21
    Part.LineSegment(V(-15, 395, 0), V(15, 395, 0)),  # 22
    Part.LineSegment(V(15, 395, 0), V(15, 385, 0)),  # 23
], False)
sketch5.addConstraint([
    Sketcher.Constraint("Coincident", 0, 2, 1, 1),
    Sketcher.Constraint("Coincident", 1, 2, 2, 1),
    Sketcher.Constraint("Coincident", 2, 2, 3, 1),
    Sketcher.Constraint("Coincident", 3, 2, 0, 1),
    Sketcher.Constraint("Coincident", 4, 2, 5, 1),
    Sketcher.Constraint("Coincident", 5, 2, 6, 1),
    Sketcher.Constraint("Coincident", 6, 2, 7, 1),
    Sketcher.Constraint("Coincident", 7, 2, 4, 1),
    Sketcher.Constraint("Coincident", 8, 2, 9, 1),
    Sketcher.Constraint("Coincident", 9, 2, 10, 1),
    Sketcher.Constraint("Coincident", 10, 2, 11, 1),
    Sketcher.Constraint("Coincident", 11, 2, 8, 1),
    Sketcher.Constraint("Coincident", 12, 2, 13, 1),
    Sketcher.Constraint("Coincident", 13, 2, 14, 1),
    Sketcher.Constraint("Coincident", 14, 2, 15, 1),
    Sketcher.Constraint("Coincident", 15, 2, 12, 1),
    Sketcher.Constraint("Coincident", 16, 2, 17, 1),
    Sketcher.Constraint("Coincident", 17, 2, 18, 1),
    Sketcher.Constraint("Coincident", 18, 2, 19, 1),
    Sketcher.Constraint("Coincident", 19, 2, 16, 1),
    Sketcher.Constraint("Coincident", 20, 2, 21, 1),
    Sketcher.Constraint("Coincident", 21, 2, 22, 1),
    Sketcher.Constraint("Coincident", 22, 2, 23, 1),
    Sketcher.Constraint("Coincident", 23, 2, 20, 1),
    Sketcher.Constraint("Vertical", 8),
    Sketcher.Constraint("Horizontal", 9),
    Sketcher.Constraint("Vertical", 10),
    Sketcher.Constraint("Horizontal", 11),
    Sketcher.Constraint("Horizontal", 12),
    Sketcher.Constraint("Vertical", 13),
    Sketcher.Constraint("Horizontal", 14),
    Sketcher.Constraint("Vertical", 15),
    Sketcher.Constraint("Horizontal", 16),
    Sketcher.Constraint("Vertical", 17),
    Sketcher.Constraint("Horizontal", 18),
    Sketcher.Constraint("Vertical", 19),
    Sketcher.Constraint("Horizontal", 20),
    Sketcher.Constraint("Vertical", 21),
    Sketcher.Constraint("Horizontal", 22),
    Sketcher.Constraint("Vertical", 23),
    Sketcher.Constraint("Symmetric", 14, 2, 16, 2, -1, 1),
    Sketcher.Constraint("Symmetric", 12, 2, 18, 2, -1, 1),
    Sketcher.Constraint("Symmetric", 9, 2, 20, 2, -1, 1),
    Sketcher.Constraint("Symmetric", 11, 2, 22, 2, -1, 1),
    Sketcher.Constraint("Perpendicular", 0, 1),
    Sketcher.Constraint("Perpendicular", 1, 2),
    Sketcher.Constraint("Perpendicular", 2, 3),
    Sketcher.Constraint("Parallel", 3, 4),
    Sketcher.Constraint("Perpendicular", 4, 5),
    Sketcher.Constraint("Perpendicular", 5, 6),
    Sketcher.Constraint("Perpendicular", 6, 7),
    Sketcher.Constraint("Horizontal", 15, 2, 16, 2),
    Sketcher.Constraint("Vertical", 11, 2, 20, 2),
    Sketcher.Constraint("Equal", 18, 8),
    Sketcher.Constraint("Equal", 22, 13),
    Sketcher.Constraint("Equal", 2, 4),
    Sketcher.Constraint("Equal", 3, 5),
    Sketcher.Constraint("DistanceX", 9, 1, 9, 2, Q("30 mm")),
    Sketcher.Constraint("DistanceX", 12, 2, 12, 1, Q("10 mm")),
    Sketcher.Constraint("Distance", 0, Q("10 mm")),
    Sketcher.Constraint("Distance", 1, Q("30 mm")),
    Sketcher.Constraint("Angle", 0, Q("-135 deg")),
    Sketcher.Constraint("DistanceY", 8, 2, -1, 1, Q("385 mm")),
    Sketcher.Constraint("DistanceX", 12, 2, -1, 1, Q("395 mm")),
    Sketcher.Constraint("DistanceX", -1, 1, 4, 2, Q("325.269 mm")),
    Sketcher.Constraint("DistanceY", 5, 2, -1, 1, Q("325.269 mm")),
    Sketcher.Constraint("DistanceY", 4, 2, 1, 2, Q("491.127 mm")),
    Sketcher.Constraint("DistanceX", 6, 2, 1, 2, Q("89.878 mm")),
])
pocket4 = body.newObject("PartDesign::Pocket", "Pocket003")
pocket4.Profile = sketch5
pocket4.Length = 6
pocket4.Reversed = True

doc.recompute()
